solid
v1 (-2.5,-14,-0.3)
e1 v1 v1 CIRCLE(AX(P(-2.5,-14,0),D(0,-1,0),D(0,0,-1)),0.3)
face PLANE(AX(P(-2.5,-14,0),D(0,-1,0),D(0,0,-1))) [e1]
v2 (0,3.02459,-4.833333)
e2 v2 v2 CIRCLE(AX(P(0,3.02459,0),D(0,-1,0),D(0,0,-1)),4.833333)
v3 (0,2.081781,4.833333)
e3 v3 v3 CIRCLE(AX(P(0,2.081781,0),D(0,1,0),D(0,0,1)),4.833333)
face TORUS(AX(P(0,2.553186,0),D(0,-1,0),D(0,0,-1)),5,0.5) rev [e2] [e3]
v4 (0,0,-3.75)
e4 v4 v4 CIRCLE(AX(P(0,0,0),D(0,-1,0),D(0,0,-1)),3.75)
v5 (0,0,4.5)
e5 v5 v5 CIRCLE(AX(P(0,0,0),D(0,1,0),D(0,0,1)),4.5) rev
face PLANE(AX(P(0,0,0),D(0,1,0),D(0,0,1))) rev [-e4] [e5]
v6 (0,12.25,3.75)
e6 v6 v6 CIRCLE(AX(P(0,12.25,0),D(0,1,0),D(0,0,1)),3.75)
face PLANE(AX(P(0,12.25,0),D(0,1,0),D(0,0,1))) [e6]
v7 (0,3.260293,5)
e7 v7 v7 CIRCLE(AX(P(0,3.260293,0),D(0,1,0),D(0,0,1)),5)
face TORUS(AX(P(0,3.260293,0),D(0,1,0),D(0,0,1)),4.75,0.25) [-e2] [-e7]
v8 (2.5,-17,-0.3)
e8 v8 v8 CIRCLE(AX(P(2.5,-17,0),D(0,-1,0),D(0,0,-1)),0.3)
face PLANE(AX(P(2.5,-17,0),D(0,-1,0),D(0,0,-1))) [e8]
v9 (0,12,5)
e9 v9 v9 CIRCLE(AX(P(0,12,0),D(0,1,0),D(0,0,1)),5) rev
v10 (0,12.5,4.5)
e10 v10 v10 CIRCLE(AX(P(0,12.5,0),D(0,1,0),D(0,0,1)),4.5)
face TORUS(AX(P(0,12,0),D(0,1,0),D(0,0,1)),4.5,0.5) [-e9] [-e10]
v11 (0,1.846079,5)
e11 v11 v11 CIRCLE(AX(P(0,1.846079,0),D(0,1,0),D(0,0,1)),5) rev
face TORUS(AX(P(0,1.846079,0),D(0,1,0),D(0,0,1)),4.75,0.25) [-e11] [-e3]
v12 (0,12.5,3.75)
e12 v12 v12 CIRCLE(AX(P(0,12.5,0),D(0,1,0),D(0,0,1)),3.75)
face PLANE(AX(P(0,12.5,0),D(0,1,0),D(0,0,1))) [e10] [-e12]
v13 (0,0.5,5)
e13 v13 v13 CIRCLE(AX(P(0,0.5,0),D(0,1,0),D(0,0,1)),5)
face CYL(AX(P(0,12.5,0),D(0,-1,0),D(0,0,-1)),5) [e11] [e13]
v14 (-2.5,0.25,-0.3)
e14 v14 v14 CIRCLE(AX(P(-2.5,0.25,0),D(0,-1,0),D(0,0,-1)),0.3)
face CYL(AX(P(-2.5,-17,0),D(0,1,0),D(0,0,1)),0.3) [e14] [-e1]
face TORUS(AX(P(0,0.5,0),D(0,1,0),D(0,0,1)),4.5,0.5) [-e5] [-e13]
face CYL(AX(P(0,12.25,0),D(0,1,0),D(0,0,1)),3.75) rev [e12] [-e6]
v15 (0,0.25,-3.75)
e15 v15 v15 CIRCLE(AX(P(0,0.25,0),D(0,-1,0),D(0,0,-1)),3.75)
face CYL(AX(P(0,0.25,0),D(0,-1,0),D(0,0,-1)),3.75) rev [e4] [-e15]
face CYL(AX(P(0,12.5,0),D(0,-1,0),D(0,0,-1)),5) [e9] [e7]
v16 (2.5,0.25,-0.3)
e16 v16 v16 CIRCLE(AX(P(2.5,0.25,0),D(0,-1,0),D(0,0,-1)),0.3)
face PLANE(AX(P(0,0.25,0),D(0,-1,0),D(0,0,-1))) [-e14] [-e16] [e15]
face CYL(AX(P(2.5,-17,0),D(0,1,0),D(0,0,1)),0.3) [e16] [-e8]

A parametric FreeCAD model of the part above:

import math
import FreeCAD as App
import Part
import Sketcher
from FreeCAD import Vector
Q = App.Units.Quantity


def edges_at(feature, points):
    """Names of the edges that pass closest to the given points."""
    edges = feature.Shape.Edges
    near = lambda p: min(range(len(edges)), key=lambda i: edges[i].distToShape(Part.Vertex(*p))[0])
    return sorted({f"Edge{near(p) + 1}" for p in points})

doc = App.newDocument("Part")
body = doc.addObject("PartDesign::Body", "Body")

sketch1 = body.newObject("Sketcher::SketchObject", "Sketch")
sketch1.AttachmentSupport = (doc.getObject("XZ_Plane"), [""])
sketch1.MapMode = "FlatFace"
sketch1.addGeometry(Part.Circle(Vector(0, 0, 0), Vector(0, 0, 1), 5), False)
sketch1.addConstraint([
    Sketcher.Constraint("Coincident", 0, 3, -1, 1),
    Sketcher.Constraint("Diameter", 0, Q("10 mm")),
])
pad1 = body.newObject("PartDesign::Pad", "Pad")
pad1.Profile = sketch1
pad1.Length = 12.5
pad1.Reversed = True

sketch2 = body.newObject("Sketcher::SketchObject", "Sketch001")
sketch2.AttachmentSupport = (doc.getObject("YZ_Plane"), [""])
sketch2.MapMode = "FlatFace"
sketch2.addGeometry([
    Part.LineSegment(Vector(3.1, 5, 0), Vector(2.1, 5, 0)),
    Part.ArcOfCircle(Part.Circle(Vector(2.6, 5, 0), Vector(0, 0, 1), 0.5), math.radians(180), math.radians(360)),
], False)
sketch2.addConstraint([
    Sketcher.Constraint("Coincident", 0, 1, 1, 2),
    Sketcher.Constraint("Coincident", 1, 1, 0, 2),
    Sketcher.Constraint("Horizontal", 0),
    Sketcher.Constraint("Horizontal", 1, 3, 0, 1),
    Sketcher.Constraint("Radius", 1, Q("0.5 mm")),
    Sketcher.Constraint("DistanceY", -1, 1, 1, 3, Q("5 mm")),
    Sketcher.Constraint("DistanceX", -1, 1, 1, 3, Q("2.553186 mm")),
])
groove = body.newObject("PartDesign::Groove", "Groove")
groove.Profile = sketch2
groove.ReferenceAxis = (sketch2, ["H_Axis"])
groove.Angle = 360
doc.recompute()

fillet = body.newObject("PartDesign::Fillet", "Fillet")
fillet.Base = (groove, edges_at(groove, [(0, 0, -5), (0, 12.5, -5)]))
fillet.Radius = 0.5
doc.recompute()

fillet2 = body.newObject("PartDesign::Fillet", "Fillet001")
fillet2.Base = (fillet, edges_at(fillet, [(-5, 2.053, 0), (-5, 3.053, 0)]))
fillet2.Radius = 0.25

sketch3 = body.newObject("Sketcher::SketchObject", "Sketch002")
sketch3.AttachmentSupport = (doc.getObject("XZ_Plane"), [""])
sketch3.MapMode = "FlatFace"
sketch3.addGeometry(Part.Circle(Vector(0, 0, 0), Vector(0, 0, 1), 3.8), False)
sketch3.addConstraint([
    Sketcher.Constraint("Coincident", 0, 3, -1, 1),
    Sketcher.Constraint("Diameter", 0, Q("7.5 mm")),
])
pocket1 = body.newObject("PartDesign::Pocket", "Pocket")
pocket1.Profile = sketch3
pocket1.Length = 0.25

sketch4 = body.newObject("Sketcher::SketchObject", "Sketch003")
sketch4.AttachmentSupport = (doc.getObject("XZ_Plane"), [""])
sketch4.MapMode = "FlatFace"
sketch4.AttachmentOffset = App.Placement(Vector(0, 0, -0.25), App.Rotation())
sketch4.addGeometry([
    Part.Circle(Vector(-2.5, 0, 0), Vector(0, 0, 1), 0.3),
    Part.Circle(Vector(2.5, 0, 0), Vector(0, 0, 1), 0.3),
], False)
sketch4.addConstraint([
    Sketcher.Constraint("Equal", 0, 1),
    Sketcher.Constraint("Symmetric", 0, 3, 1, 3, -1, 1),
    Sketcher.Constraint("PointOnObject", 0, 3, -1),
    Sketcher.Constraint("Diameter", 0, Q("0.6 mm")),
    Sketcher.Constraint("DistanceX", 0, 3, 1, 3, Q("5 mm")),
])
pad2 = body.newObject("PartDesign::Pad", "Pad001")
pad2.Profile = sketch4
pad2.Length = 17.25

sketch5 = body.newObject("Sketcher::SketchObject", "Sketch004")
sketch5.AttachmentSupport = (doc.getObject("XZ_Plane"), [""])
sketch5.MapMode = "FlatFace"
sketch5.AttachmentOffset = App.Placement(Vector(0, 0, 17), App.Rotation())
sketch5.addGeometry(Part.Circle(Vector(-2.5, 0, 0), Vector(0, 0, 1), 0.3), False)
sketch5.addConstraint([
    Sketcher.Constraint("PointOnObject", 0, 3, -1),
    Sketcher.Constraint("Diameter", 0, Q("0.6 mm")),
    Sketcher.Constraint("DistanceX", 0, 3, -1, 1, Q("2.5 mm")),
])
pocket2 = body.newObject("PartDesign::Pocket", "Pocket001")
pocket2.Profile = sketch5
pocket2.Length = 3

sketch6 = body.newObject("Sketcher::SketchObject", "Sketch005")
sketch6.AttachmentSupport = (doc.getObject("XZ_Plane"), [""])
sketch6.MapMode = "FlatFace"
sketch6.AttachmentOffset = App.Placement(Vector(0, 0, -12.5), App.Rotation())
sketch6.addGeometry(Part.Circle(Vector(0, 0, 0), Vector(0, 0, 1), 3.8), False)
sketch6.addConstraint([
    Sketcher.Constraint("Coincident", 0, 3, -1, 1),
    Sketcher.Constraint("Diameter", 0, Q("7.5 mm")),
])
pocket3 = body.newObject("PartDesign::Pocket", "Pocket002")
pocket3.Profile = sketch6
pocket3.Length = 0.25
pocket3.Reversed = True

doc.recompute()
